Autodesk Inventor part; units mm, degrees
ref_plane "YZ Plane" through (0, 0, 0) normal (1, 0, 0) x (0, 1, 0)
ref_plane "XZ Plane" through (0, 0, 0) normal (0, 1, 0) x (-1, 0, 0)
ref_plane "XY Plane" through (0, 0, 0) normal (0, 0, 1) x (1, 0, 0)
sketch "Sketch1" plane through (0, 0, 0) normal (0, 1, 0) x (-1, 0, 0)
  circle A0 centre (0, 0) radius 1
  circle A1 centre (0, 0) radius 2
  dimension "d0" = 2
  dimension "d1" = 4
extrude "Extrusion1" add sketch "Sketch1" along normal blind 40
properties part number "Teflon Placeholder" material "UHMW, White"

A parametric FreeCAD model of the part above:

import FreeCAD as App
import Part
import Sketcher
from FreeCAD import Vector
Q = App.Units.Quantity

doc = App.newDocument("Part")
body = doc.addObject("PartDesign::Body", "Body")

sketch1 = body.newObject("Sketcher::SketchObject", "Sketch")
sketch1.AttachmentSupport = (doc.getObject("XZ_Plane"), [""])
sketch1.MapMode = "FlatFace"
sketch1.addGeometry([
    Part.Circle(Vector(0, 0, 0), Vector(0, 0, 1), 2),
    Part.Circle(Vector(0, 0, 0), Vector(0, 0, 1), 1),
], False)
sketch1.addConstraint([
    Sketcher.Constraint("Coincident", 0, 3, -1, 1),
    Sketcher.Constraint("Coincident", 1, 3, -1, 1),
    Sketcher.Constraint("Diameter", 0, Q("4 mm")),
    Sketcher.Constraint("Diameter", 1, Q("2 mm")),
])
pad1 = body.newObject("PartDesign::Pad", "Pad")
pad1.Profile = sketch1
pad1.Length = 40
pad1.Reversed = True

doc.recompute()
